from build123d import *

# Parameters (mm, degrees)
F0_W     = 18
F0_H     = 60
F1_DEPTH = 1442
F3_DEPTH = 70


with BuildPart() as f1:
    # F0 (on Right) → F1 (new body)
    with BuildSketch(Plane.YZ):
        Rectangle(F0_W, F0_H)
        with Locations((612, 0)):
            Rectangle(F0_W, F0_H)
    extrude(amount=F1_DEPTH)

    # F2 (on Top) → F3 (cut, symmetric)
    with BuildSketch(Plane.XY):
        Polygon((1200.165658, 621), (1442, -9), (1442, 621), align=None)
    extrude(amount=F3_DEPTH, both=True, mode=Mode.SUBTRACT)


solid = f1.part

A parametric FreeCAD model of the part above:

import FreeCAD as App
import Part
import Sketcher

V = App.Vector
Q = App.Units.Quantity


def add_polygon(sketch, points):
    """Adds a closed chain of lines whose ends are joined by coincident constraints."""
    first, n = sketch.GeometryCount, len(points)
    for a, b in zip(points, points[1:] + points[:1]):
        sketch.addGeometry(Part.LineSegment(App.Vector(*a, 0), App.Vector(*b, 0)), False)
    for i in range(n):
        sketch.addConstraint(Sketcher.Constraint("Coincident", first + i, 2, first + (i + 1) % n, 1))

doc = App.newDocument("Part")
body = doc.addObject("PartDesign::Body", "Body")
body.AllowCompound = True

# Sketch on YZ plane
sketch1 = body.newObject("Sketcher::SketchObject", "Sketch")
sketch1.AttachmentSupport = (doc.getObject("YZ_Plane"), [""])
sketch1.MapMode = "FlatFace"
add_polygon(sketch1, [(-9, 30), (-9, -30), (9, -30), (9, 30)])  # lines 0-3
add_polygon(sketch1, [(603, 30), (603, -30), (621, -30), (621, 30)])  # lines 4-7
sketch1.addConstraint([
    Sketcher.Constraint("Vertical", 0),
    Sketcher.Constraint("Horizontal", 1),
    Sketcher.Constraint("Vertical", 2),
    Sketcher.Constraint("Horizontal", 3),
    Sketcher.Constraint("Vertical", 4),
    Sketcher.Constraint("Horizontal", 5),
    Sketcher.Constraint("Vertical", 6),
    Sketcher.Constraint("Horizontal", 7),
    Sketcher.Constraint("Symmetric", 0, 2, 2, 2, -1, 1),
    Sketcher.Constraint("Horizontal", 1, 2, 4, 2),
    Sketcher.Constraint("Horizontal", 3, 2, 6, 2),
    Sketcher.Constraint("Equal", 3, 5),
    Sketcher.Constraint("DistanceX", 1, 1, 1, 2, 18.0),
    Sketcher.Constraint("DistanceY", 0, 2, 0, 1, 60.0),
    Sketcher.Constraint("DistanceX", -1, 1, 4, 2, 603.0),
])
pad1 = body.newObject("PartDesign::Pad", "Pad")
pad1.Profile = sketch1
pad1.Length = 1442

# Sketch on XY plane
sketch2 = body.newObject("Sketcher::SketchObject", "Sketch001")
sketch2.AttachmentSupport = (doc.getObject("XY_Plane"), [""])
sketch2.MapMode = "FlatFace"
add_polygon(sketch2, [(1200, 621), (1442, -9), (1442, 621)])  # lines 0-2
sketch2.addConstraint([
    Sketcher.Constraint("Vertical", 1),
    Sketcher.Constraint("Horizontal", 2),
    Sketcher.Constraint("DistanceY", 1, 1, 1, 2, 630.0),
    Sketcher.Constraint("Angle", 0, Q("-69 deg")),
    Sketcher.Constraint("DistanceX", -1, 1, 0, 2, 1442.0),
    Sketcher.Constraint("DistanceY", 0, 2, -1, 1, 9.0),
])
pocket1 = body.newObject("PartDesign::Pocket", "Pocket")
pocket1.Profile = sketch2
pocket1.Length = 140
pocket1.Midplane = True

doc.recompute()
